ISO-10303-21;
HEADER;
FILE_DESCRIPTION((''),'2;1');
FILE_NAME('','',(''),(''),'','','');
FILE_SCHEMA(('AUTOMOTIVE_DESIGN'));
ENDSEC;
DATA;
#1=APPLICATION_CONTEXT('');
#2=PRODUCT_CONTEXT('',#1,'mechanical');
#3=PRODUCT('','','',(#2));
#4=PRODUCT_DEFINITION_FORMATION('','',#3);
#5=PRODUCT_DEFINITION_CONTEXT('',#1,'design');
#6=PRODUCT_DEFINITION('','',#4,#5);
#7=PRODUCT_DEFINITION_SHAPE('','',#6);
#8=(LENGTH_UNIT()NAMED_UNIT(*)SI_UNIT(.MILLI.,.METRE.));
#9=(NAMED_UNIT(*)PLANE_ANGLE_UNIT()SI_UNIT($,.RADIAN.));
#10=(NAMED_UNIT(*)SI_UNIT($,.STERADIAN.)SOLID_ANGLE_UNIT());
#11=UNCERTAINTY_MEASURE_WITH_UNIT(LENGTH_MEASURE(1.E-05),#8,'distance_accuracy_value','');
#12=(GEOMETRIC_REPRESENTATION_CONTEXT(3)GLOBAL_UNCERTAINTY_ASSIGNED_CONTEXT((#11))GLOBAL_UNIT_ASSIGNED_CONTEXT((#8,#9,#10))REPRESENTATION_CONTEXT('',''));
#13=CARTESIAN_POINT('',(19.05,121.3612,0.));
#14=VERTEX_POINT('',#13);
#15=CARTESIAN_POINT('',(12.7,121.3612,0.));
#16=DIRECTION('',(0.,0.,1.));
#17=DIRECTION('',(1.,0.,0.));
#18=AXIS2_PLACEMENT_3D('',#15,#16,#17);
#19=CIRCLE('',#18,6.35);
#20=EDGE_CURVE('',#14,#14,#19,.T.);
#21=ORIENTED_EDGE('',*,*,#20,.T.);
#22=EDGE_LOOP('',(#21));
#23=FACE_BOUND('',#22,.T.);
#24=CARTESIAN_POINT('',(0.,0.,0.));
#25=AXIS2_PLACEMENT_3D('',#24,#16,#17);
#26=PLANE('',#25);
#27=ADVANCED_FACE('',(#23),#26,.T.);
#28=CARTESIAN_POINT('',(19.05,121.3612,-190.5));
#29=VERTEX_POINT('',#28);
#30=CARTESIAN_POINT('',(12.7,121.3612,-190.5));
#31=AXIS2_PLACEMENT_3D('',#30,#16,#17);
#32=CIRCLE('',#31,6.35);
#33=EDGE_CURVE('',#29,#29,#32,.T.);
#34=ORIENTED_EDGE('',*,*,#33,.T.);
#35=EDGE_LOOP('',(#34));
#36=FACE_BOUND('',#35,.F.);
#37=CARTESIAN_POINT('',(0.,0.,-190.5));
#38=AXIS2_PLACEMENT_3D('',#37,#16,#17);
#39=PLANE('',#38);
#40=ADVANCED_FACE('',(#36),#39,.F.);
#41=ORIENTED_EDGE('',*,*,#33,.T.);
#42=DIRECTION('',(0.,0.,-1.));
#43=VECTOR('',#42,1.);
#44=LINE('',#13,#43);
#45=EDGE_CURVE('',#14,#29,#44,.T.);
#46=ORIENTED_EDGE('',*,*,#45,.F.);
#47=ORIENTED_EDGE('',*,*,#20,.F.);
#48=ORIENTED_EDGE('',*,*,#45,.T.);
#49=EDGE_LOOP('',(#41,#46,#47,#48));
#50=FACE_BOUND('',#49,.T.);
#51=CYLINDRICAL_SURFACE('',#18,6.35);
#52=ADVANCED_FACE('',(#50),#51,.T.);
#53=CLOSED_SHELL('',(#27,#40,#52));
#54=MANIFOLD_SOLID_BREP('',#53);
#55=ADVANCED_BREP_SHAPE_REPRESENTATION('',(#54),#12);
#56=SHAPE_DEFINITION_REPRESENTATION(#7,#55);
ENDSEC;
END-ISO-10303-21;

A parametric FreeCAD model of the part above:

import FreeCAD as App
import Part
import Sketcher

V = App.Vector
Q = App.Units.Quantity

doc = App.newDocument("Part")
body = doc.addObject("PartDesign::Body", "Body")

sketch1 = body.newObject("Sketcher::SketchObject", "Sketch")
sketch1.AttachmentSupport = (doc.getObject("XY_Plane"), [""])
sketch1.MapMode = "FlatFace"
sketch1.addGeometry(Part.Circle(V(13, 121, 0), V(0, 0, 1), 6), False)
sketch1.addConstraint(Sketcher.Constraint("Diameter", 0, Q("0.5 in")))
sketch1.addConstraint(Sketcher.Constraint("DistanceX", -1, 1, 0, 3, Q("0.5 in")))
sketch1.addConstraint(Sketcher.Constraint("DistanceY", -1, 1, 0, 3, Q("4.778 in")))
pad1 = body.newObject("PartDesign::Pad", "Pad")
pad1.Profile = sketch1
pad1.Length = Q("7.5 in")
pad1.Reversed = True

doc.recompute()
